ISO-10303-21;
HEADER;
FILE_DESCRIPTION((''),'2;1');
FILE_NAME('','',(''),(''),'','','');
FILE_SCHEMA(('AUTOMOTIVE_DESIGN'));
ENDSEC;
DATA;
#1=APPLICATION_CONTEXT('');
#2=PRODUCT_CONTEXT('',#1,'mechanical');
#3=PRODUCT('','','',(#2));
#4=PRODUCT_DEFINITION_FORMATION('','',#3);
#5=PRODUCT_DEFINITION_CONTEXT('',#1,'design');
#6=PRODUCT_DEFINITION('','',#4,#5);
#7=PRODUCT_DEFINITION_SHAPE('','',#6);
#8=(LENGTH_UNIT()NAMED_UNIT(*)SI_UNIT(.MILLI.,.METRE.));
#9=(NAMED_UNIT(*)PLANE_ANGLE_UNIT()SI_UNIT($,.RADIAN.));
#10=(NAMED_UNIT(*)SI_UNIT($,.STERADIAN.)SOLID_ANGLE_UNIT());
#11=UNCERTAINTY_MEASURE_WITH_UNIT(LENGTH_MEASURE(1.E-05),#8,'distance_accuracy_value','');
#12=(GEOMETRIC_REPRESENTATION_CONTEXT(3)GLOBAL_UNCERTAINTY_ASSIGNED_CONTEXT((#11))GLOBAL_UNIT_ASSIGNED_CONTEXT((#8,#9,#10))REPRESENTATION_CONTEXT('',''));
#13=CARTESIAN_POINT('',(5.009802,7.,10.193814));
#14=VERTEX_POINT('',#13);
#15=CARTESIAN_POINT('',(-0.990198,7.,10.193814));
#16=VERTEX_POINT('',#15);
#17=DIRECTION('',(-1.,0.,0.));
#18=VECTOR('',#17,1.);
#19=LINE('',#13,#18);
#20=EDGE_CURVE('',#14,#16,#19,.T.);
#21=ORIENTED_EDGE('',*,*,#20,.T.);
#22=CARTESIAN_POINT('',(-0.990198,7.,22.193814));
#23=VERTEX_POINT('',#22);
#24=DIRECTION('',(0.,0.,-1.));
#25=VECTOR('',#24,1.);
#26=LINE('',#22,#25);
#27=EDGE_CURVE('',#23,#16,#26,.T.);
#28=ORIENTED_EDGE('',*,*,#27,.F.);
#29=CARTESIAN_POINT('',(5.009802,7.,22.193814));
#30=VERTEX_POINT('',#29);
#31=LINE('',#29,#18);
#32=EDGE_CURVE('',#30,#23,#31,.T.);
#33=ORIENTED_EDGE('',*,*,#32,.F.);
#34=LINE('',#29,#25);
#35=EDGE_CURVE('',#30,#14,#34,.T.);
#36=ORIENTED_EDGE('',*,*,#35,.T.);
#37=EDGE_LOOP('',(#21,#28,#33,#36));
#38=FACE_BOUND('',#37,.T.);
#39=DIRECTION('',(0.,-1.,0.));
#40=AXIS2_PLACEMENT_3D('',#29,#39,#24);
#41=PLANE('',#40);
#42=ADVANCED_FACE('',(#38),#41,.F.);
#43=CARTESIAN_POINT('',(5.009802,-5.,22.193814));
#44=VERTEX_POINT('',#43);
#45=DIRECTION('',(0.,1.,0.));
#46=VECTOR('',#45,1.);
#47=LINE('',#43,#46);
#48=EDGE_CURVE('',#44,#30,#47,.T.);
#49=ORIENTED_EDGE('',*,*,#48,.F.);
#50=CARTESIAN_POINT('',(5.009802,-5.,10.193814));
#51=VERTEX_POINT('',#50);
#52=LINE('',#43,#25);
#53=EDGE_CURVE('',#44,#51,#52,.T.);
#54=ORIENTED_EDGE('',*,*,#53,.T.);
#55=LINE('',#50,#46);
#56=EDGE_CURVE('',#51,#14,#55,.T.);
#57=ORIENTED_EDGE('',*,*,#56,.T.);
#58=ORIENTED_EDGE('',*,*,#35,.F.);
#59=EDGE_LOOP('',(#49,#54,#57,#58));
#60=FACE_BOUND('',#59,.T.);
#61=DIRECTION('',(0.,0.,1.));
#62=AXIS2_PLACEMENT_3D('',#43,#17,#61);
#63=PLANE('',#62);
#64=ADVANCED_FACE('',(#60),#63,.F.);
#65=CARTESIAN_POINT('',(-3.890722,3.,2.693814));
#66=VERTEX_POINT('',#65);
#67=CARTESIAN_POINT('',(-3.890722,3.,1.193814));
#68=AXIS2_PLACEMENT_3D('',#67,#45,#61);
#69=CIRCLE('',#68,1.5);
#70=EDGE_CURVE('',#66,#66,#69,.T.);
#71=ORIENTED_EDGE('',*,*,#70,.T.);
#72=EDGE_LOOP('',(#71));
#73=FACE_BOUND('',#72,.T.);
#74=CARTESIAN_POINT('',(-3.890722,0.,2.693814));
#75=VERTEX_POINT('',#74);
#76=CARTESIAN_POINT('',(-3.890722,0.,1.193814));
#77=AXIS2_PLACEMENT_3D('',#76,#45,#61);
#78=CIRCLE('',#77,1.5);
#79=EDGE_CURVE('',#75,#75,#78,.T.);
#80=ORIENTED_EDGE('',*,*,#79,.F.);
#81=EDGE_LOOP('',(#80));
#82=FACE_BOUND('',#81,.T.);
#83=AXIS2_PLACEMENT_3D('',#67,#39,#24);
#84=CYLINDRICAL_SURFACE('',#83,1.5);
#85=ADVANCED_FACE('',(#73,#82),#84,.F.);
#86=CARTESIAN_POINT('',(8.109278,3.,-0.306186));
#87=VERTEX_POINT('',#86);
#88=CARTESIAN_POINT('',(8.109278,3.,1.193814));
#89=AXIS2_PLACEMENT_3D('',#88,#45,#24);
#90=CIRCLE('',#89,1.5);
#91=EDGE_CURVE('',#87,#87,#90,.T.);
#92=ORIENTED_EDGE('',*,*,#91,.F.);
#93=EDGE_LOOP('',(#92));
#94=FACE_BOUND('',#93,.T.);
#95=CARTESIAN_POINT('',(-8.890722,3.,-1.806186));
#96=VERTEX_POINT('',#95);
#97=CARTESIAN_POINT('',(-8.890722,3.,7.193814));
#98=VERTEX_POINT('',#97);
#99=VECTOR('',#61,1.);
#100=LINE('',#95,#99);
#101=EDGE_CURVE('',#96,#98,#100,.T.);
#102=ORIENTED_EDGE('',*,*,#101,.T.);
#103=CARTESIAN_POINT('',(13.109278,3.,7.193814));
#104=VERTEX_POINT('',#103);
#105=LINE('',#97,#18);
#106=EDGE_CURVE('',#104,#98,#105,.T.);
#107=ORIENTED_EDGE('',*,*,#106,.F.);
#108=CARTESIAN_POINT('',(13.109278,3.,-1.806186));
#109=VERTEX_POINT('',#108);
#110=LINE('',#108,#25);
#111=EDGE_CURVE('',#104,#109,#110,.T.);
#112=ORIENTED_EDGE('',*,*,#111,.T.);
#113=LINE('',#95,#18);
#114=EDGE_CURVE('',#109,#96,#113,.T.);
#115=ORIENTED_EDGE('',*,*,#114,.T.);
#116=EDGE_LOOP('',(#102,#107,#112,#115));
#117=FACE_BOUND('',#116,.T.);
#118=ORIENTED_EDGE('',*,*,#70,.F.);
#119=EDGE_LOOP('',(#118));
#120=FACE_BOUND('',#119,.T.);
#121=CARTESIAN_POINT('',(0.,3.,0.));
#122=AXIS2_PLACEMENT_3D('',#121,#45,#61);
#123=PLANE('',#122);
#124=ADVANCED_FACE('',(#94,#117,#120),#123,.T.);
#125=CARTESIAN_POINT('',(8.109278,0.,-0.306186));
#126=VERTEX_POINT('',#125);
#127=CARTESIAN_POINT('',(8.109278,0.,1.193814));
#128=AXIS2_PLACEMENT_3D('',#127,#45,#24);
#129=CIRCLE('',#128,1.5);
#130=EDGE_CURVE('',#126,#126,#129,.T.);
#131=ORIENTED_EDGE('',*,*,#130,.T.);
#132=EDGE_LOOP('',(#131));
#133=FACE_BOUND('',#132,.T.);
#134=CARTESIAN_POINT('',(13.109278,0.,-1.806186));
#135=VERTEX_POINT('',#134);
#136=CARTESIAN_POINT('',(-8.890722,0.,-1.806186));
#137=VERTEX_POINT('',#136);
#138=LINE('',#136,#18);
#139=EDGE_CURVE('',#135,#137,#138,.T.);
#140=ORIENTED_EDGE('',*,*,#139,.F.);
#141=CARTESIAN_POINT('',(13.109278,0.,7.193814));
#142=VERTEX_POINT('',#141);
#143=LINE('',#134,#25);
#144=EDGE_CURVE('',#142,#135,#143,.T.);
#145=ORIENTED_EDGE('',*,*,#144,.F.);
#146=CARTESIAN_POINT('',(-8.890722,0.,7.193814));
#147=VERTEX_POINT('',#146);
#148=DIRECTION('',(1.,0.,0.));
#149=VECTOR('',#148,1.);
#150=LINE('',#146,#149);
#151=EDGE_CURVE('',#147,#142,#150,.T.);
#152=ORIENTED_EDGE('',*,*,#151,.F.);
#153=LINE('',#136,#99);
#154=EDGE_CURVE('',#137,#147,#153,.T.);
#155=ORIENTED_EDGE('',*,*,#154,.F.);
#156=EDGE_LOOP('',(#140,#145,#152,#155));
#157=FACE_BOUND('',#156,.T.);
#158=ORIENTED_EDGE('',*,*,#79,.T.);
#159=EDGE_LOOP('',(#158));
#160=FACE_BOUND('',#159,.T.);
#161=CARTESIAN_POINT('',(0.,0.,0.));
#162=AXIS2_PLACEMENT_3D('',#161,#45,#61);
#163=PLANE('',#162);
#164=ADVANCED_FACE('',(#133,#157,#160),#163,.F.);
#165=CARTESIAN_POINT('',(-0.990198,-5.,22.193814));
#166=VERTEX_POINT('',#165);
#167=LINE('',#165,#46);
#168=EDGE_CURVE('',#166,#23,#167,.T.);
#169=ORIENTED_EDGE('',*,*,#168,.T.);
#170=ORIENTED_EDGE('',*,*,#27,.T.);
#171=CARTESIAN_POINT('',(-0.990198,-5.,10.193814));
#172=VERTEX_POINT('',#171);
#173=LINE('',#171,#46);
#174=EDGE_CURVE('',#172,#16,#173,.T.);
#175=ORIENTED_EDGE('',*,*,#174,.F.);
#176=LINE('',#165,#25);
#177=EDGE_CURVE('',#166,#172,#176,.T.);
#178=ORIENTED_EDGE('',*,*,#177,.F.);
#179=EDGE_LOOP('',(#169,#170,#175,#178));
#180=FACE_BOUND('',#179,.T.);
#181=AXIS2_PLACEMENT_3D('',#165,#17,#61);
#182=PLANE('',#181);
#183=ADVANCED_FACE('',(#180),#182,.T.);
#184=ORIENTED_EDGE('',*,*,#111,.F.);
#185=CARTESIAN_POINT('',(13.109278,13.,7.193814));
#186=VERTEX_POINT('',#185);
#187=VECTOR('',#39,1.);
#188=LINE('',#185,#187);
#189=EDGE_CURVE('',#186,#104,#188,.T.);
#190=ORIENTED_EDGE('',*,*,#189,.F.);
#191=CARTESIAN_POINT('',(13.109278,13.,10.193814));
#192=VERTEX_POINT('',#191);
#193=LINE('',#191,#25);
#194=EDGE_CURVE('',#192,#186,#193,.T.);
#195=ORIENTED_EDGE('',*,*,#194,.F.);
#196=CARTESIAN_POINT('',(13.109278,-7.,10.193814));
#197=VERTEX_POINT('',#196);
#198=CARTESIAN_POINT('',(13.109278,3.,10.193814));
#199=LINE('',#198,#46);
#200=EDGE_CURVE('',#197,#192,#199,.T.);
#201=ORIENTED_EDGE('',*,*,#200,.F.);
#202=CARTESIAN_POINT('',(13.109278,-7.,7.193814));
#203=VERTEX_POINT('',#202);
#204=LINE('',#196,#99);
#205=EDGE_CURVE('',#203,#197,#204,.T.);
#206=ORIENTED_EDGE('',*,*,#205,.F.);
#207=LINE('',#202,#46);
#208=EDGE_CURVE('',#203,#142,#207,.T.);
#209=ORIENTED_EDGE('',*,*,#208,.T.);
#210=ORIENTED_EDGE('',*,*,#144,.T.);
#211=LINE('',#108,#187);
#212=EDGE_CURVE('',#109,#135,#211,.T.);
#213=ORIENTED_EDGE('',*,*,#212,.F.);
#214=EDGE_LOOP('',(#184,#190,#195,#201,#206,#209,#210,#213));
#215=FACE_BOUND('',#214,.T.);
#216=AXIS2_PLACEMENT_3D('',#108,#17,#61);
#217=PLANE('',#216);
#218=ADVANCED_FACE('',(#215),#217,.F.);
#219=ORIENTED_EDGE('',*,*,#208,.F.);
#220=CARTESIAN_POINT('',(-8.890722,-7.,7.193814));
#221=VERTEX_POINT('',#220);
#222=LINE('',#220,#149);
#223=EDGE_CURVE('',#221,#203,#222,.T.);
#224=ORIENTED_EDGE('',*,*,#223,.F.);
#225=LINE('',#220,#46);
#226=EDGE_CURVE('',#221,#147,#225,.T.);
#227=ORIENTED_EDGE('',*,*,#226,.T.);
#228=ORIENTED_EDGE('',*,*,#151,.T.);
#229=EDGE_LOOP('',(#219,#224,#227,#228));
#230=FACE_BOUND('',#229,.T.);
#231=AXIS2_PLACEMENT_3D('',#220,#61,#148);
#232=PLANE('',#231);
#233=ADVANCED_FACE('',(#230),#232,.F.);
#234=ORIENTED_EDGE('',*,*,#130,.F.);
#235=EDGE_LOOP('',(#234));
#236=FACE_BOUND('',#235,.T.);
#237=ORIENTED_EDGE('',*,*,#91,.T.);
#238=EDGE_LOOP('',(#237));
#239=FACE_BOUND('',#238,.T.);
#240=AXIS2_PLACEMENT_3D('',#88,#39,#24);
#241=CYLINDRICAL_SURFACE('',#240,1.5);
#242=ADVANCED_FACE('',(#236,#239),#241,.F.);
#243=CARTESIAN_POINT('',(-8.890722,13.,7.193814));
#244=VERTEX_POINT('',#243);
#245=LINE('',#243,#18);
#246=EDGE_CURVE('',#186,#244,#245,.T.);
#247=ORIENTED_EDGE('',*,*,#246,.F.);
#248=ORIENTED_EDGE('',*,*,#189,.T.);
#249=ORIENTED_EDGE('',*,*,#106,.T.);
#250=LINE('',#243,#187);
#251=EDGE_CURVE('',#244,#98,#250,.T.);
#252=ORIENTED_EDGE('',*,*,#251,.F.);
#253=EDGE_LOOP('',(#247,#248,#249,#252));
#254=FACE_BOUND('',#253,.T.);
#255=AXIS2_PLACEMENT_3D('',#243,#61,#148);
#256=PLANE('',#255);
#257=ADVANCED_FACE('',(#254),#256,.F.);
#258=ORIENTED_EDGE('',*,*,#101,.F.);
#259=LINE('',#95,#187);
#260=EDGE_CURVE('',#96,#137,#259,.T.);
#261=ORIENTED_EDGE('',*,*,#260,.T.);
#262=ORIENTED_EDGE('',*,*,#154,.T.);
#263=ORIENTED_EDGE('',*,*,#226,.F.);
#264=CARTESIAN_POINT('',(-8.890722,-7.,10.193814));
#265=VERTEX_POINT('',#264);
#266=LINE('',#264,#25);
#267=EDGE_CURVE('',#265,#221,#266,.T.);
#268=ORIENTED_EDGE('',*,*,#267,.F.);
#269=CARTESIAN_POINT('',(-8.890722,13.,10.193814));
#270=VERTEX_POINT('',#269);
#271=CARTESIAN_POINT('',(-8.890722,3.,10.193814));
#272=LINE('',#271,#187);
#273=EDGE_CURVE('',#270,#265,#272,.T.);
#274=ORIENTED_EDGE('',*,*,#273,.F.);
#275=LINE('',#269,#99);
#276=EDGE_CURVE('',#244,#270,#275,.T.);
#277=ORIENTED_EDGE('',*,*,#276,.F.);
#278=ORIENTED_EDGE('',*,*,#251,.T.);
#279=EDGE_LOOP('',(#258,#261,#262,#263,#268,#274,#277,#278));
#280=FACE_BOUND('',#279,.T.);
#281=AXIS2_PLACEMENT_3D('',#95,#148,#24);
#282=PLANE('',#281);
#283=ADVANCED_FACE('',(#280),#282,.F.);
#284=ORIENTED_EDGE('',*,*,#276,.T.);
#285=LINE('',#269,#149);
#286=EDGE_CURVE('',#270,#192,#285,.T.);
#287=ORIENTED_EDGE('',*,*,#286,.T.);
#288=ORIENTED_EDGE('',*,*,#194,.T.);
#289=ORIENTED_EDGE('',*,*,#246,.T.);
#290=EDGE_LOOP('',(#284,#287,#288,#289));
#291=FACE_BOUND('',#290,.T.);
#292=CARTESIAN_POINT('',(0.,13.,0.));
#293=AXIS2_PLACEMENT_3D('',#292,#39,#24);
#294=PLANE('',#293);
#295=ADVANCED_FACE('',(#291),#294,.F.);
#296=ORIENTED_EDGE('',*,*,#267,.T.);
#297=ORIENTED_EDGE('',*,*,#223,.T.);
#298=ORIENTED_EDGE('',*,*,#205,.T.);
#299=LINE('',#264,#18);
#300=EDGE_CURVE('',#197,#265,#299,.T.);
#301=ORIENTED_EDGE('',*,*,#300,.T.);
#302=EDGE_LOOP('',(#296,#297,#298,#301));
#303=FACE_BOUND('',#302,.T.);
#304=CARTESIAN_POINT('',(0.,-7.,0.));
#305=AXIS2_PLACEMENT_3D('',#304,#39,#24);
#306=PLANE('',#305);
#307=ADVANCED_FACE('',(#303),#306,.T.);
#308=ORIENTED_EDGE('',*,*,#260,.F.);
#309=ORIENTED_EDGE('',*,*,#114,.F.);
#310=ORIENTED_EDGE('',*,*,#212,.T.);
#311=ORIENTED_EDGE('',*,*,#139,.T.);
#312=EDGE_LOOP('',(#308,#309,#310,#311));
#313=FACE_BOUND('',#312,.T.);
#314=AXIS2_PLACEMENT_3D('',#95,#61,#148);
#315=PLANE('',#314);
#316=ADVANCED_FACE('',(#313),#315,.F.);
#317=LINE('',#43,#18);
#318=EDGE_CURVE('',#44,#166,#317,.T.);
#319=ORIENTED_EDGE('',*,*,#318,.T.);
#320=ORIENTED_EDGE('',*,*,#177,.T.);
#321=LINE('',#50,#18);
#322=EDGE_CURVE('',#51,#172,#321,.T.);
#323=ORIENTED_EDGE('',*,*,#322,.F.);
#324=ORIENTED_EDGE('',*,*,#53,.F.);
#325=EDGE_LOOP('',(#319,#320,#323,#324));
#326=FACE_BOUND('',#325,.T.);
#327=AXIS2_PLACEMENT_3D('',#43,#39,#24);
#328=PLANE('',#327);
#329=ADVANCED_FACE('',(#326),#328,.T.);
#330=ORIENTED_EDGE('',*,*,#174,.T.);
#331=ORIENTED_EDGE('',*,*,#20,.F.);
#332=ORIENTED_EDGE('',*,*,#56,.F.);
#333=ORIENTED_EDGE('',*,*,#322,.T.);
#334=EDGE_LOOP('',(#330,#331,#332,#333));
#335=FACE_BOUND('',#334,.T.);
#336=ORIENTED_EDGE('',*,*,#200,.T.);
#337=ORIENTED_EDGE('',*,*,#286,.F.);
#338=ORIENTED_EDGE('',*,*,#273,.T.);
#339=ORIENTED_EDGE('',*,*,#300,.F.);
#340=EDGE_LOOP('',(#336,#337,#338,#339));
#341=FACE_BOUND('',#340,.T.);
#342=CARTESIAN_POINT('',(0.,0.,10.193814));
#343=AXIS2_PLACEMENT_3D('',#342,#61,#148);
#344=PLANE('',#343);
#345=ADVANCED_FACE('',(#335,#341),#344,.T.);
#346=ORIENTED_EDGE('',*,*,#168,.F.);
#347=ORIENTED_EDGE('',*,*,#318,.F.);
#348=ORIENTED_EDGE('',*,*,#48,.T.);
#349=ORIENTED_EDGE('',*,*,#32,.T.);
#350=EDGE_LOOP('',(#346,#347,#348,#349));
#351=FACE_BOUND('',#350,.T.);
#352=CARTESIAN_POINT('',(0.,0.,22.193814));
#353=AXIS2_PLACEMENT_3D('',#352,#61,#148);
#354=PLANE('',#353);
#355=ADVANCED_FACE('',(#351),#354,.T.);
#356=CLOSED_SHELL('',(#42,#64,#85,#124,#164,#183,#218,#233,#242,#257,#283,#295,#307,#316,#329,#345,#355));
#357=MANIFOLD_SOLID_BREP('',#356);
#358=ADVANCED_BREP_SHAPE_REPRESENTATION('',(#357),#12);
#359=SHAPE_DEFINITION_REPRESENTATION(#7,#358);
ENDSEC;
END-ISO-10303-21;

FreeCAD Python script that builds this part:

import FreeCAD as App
import Part
import Sketcher

V = App.Vector
Q = App.Units.Quantity


def add_polygon(sketch, points):
    """Adds a closed chain of lines whose ends are joined by coincident constraints."""
    first, n = sketch.GeometryCount, len(points)
    for a, b in zip(points, points[1:] + points[:1]):
        sketch.addGeometry(Part.LineSegment(App.Vector(*a, 0), App.Vector(*b, 0)), False)
    for i in range(n):
        sketch.addConstraint(Sketcher.Constraint("Coincident", first + i, 2, first + (i + 1) % n, 1))

doc = App.newDocument("Part")
params = doc.addObject("Spreadsheet::Sheet", "Params")
for row, (alias, value) in enumerate([
    ("sketch1_diameter", "3 mm"),
    ("sketch1_width", "22 mm"),
    ("sketch1_height", "7 mm"),
    ("pad1_length", "3 mm"),
    ("sketch2_width", "22 mm"),
    ("sketch2_height", "3 mm"),
    ("pad2_length", "5 mm"),
    ("sketch3_width", "22 mm"),
    ("sketch3_height", "3 mm"),
    ("pad3_length", "10 mm"),
    ("sketch4_width", "22 mm"),
    ("sketch4_height", "3 mm"),
    ("pad4_length", "7 mm"),
    ("sketch5_width", "6 mm"),
    ("sketch5_height", "12 mm"),
    ("pad5_length", "12 mm"),
], start=1):
    params.set(f"A{row}", alias)
    params.set(f"B{row}", "=" + value)
    params.setAlias(f"B{row}", alias)

body = doc.addObject("PartDesign::Body", "Body")

sketch1 = body.newObject("Sketcher::SketchObject", "Sketch")
sketch1.AttachmentSupport = (doc.getObject("XZ_Plane"), [""])
sketch1.MapMode = "FlatFace"
add_polygon(sketch1, [(-8.9, -1.8), (-8.9, 5.2), (13.1, 5.2), (13.1, -1.8)])
sketch1.addGeometry(Part.Circle(V(-3.9, 1.2, 0), V(0, 0, 1), 1.5), False)
sketch1.addGeometry(Part.Circle(V(8.1, 1.2, 0), V(0, 0, 1), 1.5), False)
sketch1.addConstraint(Sketcher.Constraint("Vertical", 0))
sketch1.addConstraint(Sketcher.Constraint("Horizontal", 1))
sketch1.addConstraint(Sketcher.Constraint("Vertical", 2))
sketch1.addConstraint(Sketcher.Constraint("Horizontal", 3))
sketch1.addConstraint(Sketcher.Constraint("Equal", 4, 5))
sketch1.addConstraint(Sketcher.Constraint("Horizontal", 4, 3, 5, 3))
sketch1.addConstraint(Sketcher.Constraint("Diameter", 4, Q("3 mm")))
sketch1.addConstraint(Sketcher.Constraint("DistanceX", 1, 1, 1, 2, Q("22 mm")))
sketch1.addConstraint(Sketcher.Constraint("DistanceY", 0, 1, 0, 2, Q("7 mm")))
sketch1.addConstraint(Sketcher.Constraint("DistanceX", 4, 3, 5, 3, Q("12 mm")))
sketch1.addConstraint(Sketcher.Constraint("DistanceX", 0, 2, 4, 3, Q("5 mm")))
sketch1.addConstraint(Sketcher.Constraint("DistanceY", 4, 3, 0, 2, Q("4 mm")))
sketch1.addConstraint(Sketcher.Constraint("DistanceX", 4, 3, -1, 1, Q("3.890722 mm")))
sketch1.addConstraint(Sketcher.Constraint("DistanceY", -1, 1, 4, 3, Q("1.193814 mm")))
sketch1.setExpression("Constraints[10]", "Params.sketch1_diameter")
sketch1.setExpression("Constraints[11]", "Params.sketch1_width")
sketch1.setExpression("Constraints[12]", "Params.sketch1_height")
pad1 = body.newObject("PartDesign::Pad", "Pad")
pad1.Profile = sketch1
pad1.setExpression("Length", "Params.pad1_length")
pad1.Reversed = True

sketch2 = body.newObject("Sketcher::SketchObject", "Sketch001")
sketch2.AttachmentSupport = (doc.getObject("XY_Plane"), [""])
sketch2.MapMode = "FlatFace"
sketch2.AttachmentOffset = App.Placement(V(0, 0, 5.193814), App.Rotation())
add_polygon(sketch2, [(-8.9, 3), (-8.9, 0), (13.1, 0), (13.1, 3)])
sketch2.addConstraint(Sketcher.Constraint("Vertical", 0))
sketch2.addConstraint(Sketcher.Constraint("Horizontal", 1))
sketch2.addConstraint(Sketcher.Constraint("Vertical", 2))
sketch2.addConstraint(Sketcher.Constraint("Horizontal", 3))
sketch2.addConstraint(Sketcher.Constraint("PointOnObject", 0, 2, -1))
sketch2.addConstraint(Sketcher.Constraint("DistanceX", 1, 1, 1, 2, Q("22 mm")))
sketch2.addConstraint(Sketcher.Constraint("DistanceY", 0, 2, 0, 1, Q("3 mm")))
sketch2.addConstraint(Sketcher.Constraint("DistanceX", 0, 2, -1, 1, Q("8.890722 mm")))
sketch2.setExpression("Constraints[9]", "Params.sketch2_width")
sketch2.setExpression("Constraints[10]", "Params.sketch2_height")
pad2 = body.newObject("PartDesign::Pad", "Pad001")
pad2.Profile = sketch2
pad2.setExpression("Length", "Params.pad2_length")

sketch3 = body.newObject("Sketcher::SketchObject", "Sketch002")
sketch3.AttachmentSupport = (doc.getObject("XZ_Plane"), [""])
sketch3.MapMode = "FlatFace"
sketch3.AttachmentOffset = App.Placement(V(0, 0, -3), App.Rotation())
add_polygon(sketch3, [(-8.9, 7.2), (-8.9, 10.2), (13.1, 10.2), (13.1, 7.2)])
sketch3.addConstraint(Sketcher.Constraint("Vertical", 0))
sketch3.addConstraint(Sketcher.Constraint("Horizontal", 1))
sketch3.addConstraint(Sketcher.Constraint("Vertical", 2))
sketch3.addConstraint(Sketcher.Constraint("Horizontal", 3))
sketch3.addConstraint(Sketcher.Constraint("DistanceX", 1, 1, 1, 2, Q("22 mm")))
sketch3.addConstraint(Sketcher.Constraint("DistanceY", 0, 1, 0, 2, Q("3 mm")))
sketch3.addConstraint(Sketcher.Constraint("DistanceX", 0, 2, -1, 1, Q("8.890722 mm")))
sketch3.addConstraint(Sketcher.Constraint("DistanceY", -1, 1, 0, 2, Q("10.193814 mm")))
sketch3.setExpression("Constraints[8]", "Params.sketch3_width")
sketch3.setExpression("Constraints[9]", "Params.sketch3_height")
pad3 = body.newObject("PartDesign::Pad", "Pad002")
pad3.Profile = sketch3
pad3.setExpression("Length", "Params.pad3_length")
pad3.Reversed = True

sketch4 = body.newObject("Sketcher::SketchObject", "Sketch003")
sketch4.AttachmentSupport = (doc.getObject("XZ_Plane"), [""])
sketch4.MapMode = "FlatFace"
add_polygon(sketch4, [(-8.9, 10.2), (-8.9, 7.2), (13.1, 7.2), (13.1, 10.2)])
sketch4.addConstraint(Sketcher.Constraint("Vertical", 0))
sketch4.addConstraint(Sketcher.Constraint("Horizontal", 1))
sketch4.addConstraint(Sketcher.Constraint("Vertical", 2))
sketch4.addConstraint(Sketcher.Constraint("Horizontal", 3))
sketch4.addConstraint(Sketcher.Constraint("DistanceX", 1, 1, 1, 2, Q("22 mm")))
sketch4.addConstraint(Sketcher.Constraint("DistanceY", 0, 2, 0, 1, Q("3 mm")))
sketch4.addConstraint(Sketcher.Constraint("DistanceX", 0, 2, -1, 1, Q("8.890722 mm")))
sketch4.addConstraint(Sketcher.Constraint("DistanceY", -1, 1, 0, 2, Q("7.193814 mm")))
sketch4.setExpression("Constraints[8]", "Params.sketch4_width")
sketch4.setExpression("Constraints[9]", "Params.sketch4_height")
pad4 = body.newObject("PartDesign::Pad", "Pad003")
pad4.Profile = sketch4
pad4.setExpression("Length", "Params.pad4_length")

sketch5 = body.newObject("Sketcher::SketchObject", "Sketch004")
sketch5.AttachmentSupport = (doc.getObject("XY_Plane"), [""])
sketch5.MapMode = "FlatFace"
sketch5.AttachmentOffset = App.Placement(V(0, 0, 10.193814), App.Rotation())
add_polygon(sketch5, [(-1, 7), (-1, -5), (5, -5), (5, 7)])
sketch5.addConstraint(Sketcher.Constraint("Vertical", 0))
sketch5.addConstraint(Sketcher.Constraint("Horizontal", 1))
sketch5.addConstraint(Sketcher.Constraint("Vertical", 2))
sketch5.addConstraint(Sketcher.Constraint("Horizontal", 3))
sketch5.addConstraint(Sketcher.Constraint("DistanceX", 1, 1, 1, 2, Q("6 mm")))
sketch5.addConstraint(Sketcher.Constraint("DistanceY", 0, 2, 0, 1, Q("12 mm")))
sketch5.addConstraint(Sketcher.Constraint("DistanceY", 0, 2, -1, 1, Q("5 mm")))
sketch5.addConstraint(Sketcher.Constraint("DistanceX", 0, 2, -1, 1, Q("0.990198 mm")))
sketch5.setExpression("Constraints[8]", "Params.sketch5_width")
sketch5.setExpression("Constraints[9]", "Params.sketch5_height")
pad5 = body.newObject("PartDesign::Pad", "Pad004")
pad5.Profile = sketch5
pad5.setExpression("Length", "Params.pad5_length")

doc.recompute()
